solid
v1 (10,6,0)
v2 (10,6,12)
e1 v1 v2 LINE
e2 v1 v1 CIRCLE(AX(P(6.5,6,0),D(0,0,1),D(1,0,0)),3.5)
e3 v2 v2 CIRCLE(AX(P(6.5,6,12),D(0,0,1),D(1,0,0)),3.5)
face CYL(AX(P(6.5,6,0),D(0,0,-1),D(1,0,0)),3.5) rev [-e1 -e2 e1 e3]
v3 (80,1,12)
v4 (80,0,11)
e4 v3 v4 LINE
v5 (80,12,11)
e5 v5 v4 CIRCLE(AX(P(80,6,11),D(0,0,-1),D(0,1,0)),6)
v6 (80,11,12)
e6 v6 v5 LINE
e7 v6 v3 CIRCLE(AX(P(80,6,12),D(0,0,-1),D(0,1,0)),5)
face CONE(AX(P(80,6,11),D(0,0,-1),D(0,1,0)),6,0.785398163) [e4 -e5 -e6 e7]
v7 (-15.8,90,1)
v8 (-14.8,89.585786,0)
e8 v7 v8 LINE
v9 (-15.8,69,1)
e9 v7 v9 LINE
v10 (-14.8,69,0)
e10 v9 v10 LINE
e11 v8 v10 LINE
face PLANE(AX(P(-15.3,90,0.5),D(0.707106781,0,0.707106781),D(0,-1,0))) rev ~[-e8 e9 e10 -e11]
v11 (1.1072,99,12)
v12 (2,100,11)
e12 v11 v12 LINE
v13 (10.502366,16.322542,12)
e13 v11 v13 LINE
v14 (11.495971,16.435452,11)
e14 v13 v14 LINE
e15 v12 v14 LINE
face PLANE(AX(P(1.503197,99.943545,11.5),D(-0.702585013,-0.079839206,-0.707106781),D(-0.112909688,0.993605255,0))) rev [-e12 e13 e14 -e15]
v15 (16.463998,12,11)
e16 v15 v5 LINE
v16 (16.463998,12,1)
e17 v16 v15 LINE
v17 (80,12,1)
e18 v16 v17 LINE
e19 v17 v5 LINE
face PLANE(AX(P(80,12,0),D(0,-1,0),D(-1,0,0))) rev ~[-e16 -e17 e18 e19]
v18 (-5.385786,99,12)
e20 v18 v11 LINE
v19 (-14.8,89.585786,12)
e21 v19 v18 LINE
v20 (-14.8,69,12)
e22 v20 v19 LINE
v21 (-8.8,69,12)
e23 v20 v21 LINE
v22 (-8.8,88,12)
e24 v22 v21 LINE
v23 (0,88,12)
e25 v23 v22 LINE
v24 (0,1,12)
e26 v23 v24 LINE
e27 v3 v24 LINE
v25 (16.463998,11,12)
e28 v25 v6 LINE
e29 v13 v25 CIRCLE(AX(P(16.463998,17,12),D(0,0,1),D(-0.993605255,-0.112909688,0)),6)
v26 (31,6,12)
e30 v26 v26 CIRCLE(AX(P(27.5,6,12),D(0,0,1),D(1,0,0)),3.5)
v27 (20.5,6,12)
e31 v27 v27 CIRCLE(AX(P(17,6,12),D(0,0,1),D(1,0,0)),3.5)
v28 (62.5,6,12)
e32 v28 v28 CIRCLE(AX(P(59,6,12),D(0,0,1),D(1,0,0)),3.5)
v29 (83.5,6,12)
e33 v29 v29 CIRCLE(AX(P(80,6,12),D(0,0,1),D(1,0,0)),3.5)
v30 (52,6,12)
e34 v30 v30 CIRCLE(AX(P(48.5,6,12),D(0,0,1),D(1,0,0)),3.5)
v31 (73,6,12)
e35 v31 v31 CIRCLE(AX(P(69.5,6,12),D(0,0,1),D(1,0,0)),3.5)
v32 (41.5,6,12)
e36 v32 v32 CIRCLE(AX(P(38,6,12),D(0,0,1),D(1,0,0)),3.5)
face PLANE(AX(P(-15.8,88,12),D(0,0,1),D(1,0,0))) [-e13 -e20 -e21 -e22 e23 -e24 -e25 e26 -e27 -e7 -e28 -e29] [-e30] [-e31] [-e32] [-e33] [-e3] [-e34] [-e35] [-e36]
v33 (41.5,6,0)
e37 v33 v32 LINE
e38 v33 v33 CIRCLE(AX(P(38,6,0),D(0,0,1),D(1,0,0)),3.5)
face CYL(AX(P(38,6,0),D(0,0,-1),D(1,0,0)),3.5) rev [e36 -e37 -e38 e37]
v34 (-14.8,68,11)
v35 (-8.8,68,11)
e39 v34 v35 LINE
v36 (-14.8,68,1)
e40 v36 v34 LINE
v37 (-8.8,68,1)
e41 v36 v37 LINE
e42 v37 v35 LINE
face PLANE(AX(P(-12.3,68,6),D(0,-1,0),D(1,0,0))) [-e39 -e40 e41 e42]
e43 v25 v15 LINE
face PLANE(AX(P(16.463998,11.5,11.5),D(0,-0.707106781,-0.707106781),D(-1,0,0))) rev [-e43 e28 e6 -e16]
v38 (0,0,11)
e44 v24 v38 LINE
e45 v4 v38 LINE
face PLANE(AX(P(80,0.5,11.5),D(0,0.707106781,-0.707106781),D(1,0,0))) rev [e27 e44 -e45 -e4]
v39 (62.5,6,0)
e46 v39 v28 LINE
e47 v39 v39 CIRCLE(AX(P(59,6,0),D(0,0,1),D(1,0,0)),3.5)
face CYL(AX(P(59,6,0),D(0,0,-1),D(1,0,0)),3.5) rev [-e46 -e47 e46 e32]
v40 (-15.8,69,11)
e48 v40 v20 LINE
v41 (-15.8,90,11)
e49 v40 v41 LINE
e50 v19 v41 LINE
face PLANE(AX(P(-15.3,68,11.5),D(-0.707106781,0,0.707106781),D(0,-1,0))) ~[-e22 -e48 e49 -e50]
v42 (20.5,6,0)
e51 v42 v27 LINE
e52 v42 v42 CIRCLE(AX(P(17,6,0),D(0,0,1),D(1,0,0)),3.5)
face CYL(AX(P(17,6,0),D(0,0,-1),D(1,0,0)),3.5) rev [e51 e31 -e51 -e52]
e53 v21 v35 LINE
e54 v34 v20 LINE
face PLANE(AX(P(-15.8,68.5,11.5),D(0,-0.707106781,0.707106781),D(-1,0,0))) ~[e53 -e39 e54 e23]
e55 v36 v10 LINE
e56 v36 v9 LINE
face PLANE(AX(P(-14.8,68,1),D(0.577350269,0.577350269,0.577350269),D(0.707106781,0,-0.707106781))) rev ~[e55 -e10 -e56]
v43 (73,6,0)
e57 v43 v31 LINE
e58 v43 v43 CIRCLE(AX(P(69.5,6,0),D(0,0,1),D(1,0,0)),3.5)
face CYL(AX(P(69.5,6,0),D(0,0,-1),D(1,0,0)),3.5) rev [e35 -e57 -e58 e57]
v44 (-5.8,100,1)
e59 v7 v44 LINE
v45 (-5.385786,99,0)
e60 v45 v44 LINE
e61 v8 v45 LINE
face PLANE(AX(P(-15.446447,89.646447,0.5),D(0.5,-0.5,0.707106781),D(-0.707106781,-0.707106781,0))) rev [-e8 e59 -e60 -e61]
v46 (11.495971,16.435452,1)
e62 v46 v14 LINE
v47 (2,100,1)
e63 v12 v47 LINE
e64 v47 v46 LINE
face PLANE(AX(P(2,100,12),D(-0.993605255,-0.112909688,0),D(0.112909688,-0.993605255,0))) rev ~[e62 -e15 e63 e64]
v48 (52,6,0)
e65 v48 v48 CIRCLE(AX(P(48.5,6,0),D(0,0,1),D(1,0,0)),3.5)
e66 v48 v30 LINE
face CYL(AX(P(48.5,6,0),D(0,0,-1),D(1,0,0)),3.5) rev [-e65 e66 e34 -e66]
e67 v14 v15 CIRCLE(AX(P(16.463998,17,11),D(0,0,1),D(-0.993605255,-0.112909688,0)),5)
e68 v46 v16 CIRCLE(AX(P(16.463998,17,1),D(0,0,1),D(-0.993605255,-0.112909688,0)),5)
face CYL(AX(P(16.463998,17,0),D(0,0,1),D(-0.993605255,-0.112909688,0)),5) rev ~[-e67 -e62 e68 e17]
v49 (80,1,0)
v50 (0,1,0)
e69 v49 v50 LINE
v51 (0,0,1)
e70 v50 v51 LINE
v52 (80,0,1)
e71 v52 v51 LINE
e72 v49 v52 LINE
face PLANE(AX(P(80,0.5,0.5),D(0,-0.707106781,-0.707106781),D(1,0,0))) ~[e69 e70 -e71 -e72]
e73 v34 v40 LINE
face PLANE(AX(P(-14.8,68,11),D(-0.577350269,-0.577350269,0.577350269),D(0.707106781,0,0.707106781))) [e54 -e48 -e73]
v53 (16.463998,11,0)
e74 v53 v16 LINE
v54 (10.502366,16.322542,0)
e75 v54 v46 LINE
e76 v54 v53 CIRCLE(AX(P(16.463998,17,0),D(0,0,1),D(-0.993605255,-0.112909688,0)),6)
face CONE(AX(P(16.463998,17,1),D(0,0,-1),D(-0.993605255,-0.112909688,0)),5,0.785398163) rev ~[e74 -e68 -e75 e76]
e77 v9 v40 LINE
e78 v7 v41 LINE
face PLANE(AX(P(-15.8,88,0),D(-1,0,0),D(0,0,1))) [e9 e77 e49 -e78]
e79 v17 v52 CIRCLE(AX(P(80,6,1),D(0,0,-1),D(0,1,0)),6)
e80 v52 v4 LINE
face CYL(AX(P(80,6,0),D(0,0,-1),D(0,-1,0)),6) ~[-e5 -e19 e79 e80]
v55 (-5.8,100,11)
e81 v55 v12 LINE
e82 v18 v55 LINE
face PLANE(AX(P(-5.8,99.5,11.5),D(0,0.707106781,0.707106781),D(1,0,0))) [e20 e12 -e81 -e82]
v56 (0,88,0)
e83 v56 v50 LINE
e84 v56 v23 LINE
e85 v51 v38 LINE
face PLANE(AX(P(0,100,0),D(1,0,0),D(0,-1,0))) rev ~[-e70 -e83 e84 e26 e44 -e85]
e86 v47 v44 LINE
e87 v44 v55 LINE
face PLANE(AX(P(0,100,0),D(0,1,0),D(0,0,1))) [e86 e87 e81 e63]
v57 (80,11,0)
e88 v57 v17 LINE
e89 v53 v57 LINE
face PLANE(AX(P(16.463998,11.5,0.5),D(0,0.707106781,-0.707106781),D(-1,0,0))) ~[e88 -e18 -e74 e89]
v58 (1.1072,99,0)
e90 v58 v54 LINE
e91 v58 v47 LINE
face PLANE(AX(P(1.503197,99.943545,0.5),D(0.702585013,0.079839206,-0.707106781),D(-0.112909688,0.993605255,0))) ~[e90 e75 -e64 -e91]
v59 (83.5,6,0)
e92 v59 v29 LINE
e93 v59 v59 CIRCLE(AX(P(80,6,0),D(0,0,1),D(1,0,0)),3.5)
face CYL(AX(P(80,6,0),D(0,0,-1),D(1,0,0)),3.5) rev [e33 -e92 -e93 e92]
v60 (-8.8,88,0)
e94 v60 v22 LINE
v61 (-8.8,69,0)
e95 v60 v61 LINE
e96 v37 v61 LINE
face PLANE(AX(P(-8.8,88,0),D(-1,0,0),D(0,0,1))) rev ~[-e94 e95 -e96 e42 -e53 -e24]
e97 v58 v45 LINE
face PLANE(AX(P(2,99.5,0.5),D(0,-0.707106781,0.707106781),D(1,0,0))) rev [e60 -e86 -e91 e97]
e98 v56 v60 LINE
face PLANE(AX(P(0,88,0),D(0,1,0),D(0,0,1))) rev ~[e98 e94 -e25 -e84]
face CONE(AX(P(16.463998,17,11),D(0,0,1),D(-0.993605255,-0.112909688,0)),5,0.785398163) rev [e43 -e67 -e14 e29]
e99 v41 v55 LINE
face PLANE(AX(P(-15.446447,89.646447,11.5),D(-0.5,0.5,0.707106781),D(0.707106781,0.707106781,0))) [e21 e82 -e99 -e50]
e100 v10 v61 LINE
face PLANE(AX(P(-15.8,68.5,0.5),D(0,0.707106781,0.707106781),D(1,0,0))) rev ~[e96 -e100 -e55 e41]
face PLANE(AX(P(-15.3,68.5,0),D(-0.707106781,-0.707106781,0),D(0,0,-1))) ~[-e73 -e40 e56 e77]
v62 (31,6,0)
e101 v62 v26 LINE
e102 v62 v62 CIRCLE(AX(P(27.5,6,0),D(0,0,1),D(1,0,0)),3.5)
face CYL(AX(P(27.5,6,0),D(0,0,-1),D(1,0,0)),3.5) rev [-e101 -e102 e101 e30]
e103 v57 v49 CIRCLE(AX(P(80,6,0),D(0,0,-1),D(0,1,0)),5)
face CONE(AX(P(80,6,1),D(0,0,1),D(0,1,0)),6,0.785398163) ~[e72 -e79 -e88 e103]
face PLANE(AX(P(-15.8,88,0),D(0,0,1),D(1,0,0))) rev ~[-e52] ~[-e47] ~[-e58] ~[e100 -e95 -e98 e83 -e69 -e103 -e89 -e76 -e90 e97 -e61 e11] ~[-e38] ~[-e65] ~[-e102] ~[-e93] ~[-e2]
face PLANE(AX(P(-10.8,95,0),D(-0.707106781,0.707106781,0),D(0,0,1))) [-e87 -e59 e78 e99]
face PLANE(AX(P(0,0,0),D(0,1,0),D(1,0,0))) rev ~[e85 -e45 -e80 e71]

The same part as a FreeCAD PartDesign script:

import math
import FreeCAD as App
import Part
import Sketcher
Q = App.Units.Quantity


def edges_at(feature, points):
    """Names of the edges that pass closest to the given points."""
    edges = feature.Shape.Edges
    near = lambda p: min(range(len(edges)), key=lambda i: edges[i].distToShape(Part.Vertex(*p))[0])
    return sorted({f"Edge{near(p) + 1}" for p in points})

doc = App.newDocument("Part")
body = doc.addObject("PartDesign::Body", "Body")

# Sketch on XY plane
sketch1 = doc.addObject("Sketcher::SketchObject", "Sketch")
body.addObject(sketch1)
sketch1.AttachmentSupport = (doc.XY_Plane, [""])
sketch1.MapMode = "FlatFace"
sketch1.addGeometry(Part.LineSegment(App.Vector(12, 100, 0), App.Vector(0, 100, 0)), False)
sketch1.addGeometry(Part.LineSegment(App.Vector(0, 100, 0), App.Vector(0, 0, 0)), False)
sketch1.addGeometry(Part.LineSegment(App.Vector(0, 0, 0), App.Vector(80, 0, 0)), False)
sketch1.addGeometry(Part.ArcOfCircle(Part.Circle(App.Vector(80, 6, 0), App.Vector(0, 0, 1), 6), math.radians(-90), math.radians(90)), False)
sketch1.addGeometry(Part.LineSegment(App.Vector(80, 12, 0), App.Vector(12, 12, 0)), False)
sketch1.addGeometry(Part.LineSegment(App.Vector(12, 12, 0), App.Vector(12, 100, 0)), False)
sketch1.addGeometry(Part.Circle(App.Vector(6.5, 6, 0), App.Vector(0, 0, 1), 3.5), False)
sketch1.addGeometry(Part.Circle(App.Vector(17, 6, 0), App.Vector(0, 0, 1), 3.5), False)
sketch1.addGeometry(Part.Circle(App.Vector(27.5, 6, 0), App.Vector(0, 0, 1), 3.5), False)
sketch1.addGeometry(Part.Circle(App.Vector(38, 6, 0), App.Vector(0, 0, 1), 3.5), False)
sketch1.addGeometry(Part.Circle(App.Vector(48.5, 6, 0), App.Vector(0, 0, 1), 3.5), False)
sketch1.addGeometry(Part.Circle(App.Vector(59, 6, 0), App.Vector(0, 0, 1), 3.5), False)
sketch1.addGeometry(Part.Circle(App.Vector(69.5, 6, 0), App.Vector(0, 0, 1), 3.5), False)
sketch1.addGeometry(Part.Circle(App.Vector(80, 6, 0), App.Vector(0, 0, 1), 3.5), False)
sketch1.addConstraint(Sketcher.Constraint("Coincident", 0, 2, 1, 1))
sketch1.addConstraint(Sketcher.Constraint("Coincident", 1, 2, 2, 1))
sketch1.addConstraint(Sketcher.Constraint("Tangent", 2, 2, 3, 1))
sketch1.addConstraint(Sketcher.Constraint("Tangent", 3, 2, 4, 1))
sketch1.addConstraint(Sketcher.Constraint("Coincident", 4, 2, 5, 1))
sketch1.addConstraint(Sketcher.Constraint("Coincident", 5, 2, 0, 1))
sketch1.addConstraint(Sketcher.Constraint("Horizontal", 0))
sketch1.addConstraint(Sketcher.Constraint("Vertical", 1))
sketch1.addConstraint(Sketcher.Constraint("Horizontal", 2))
sketch1.addConstraint(Sketcher.Constraint("Horizontal", 4))
sketch1.addConstraint(Sketcher.Constraint("Vertical", 5))
sketch1.addConstraint(Sketcher.Constraint("Coincident", 1, 2, -1, 1))
sketch1.addConstraint(Sketcher.Constraint("Coincident", 13, 3, 3, 3))
sketch1.addConstraint(Sketcher.Constraint("Equal", 6, 7))
sketch1.addConstraint(Sketcher.Constraint("Equal", 7, 8))
sketch1.addConstraint(Sketcher.Constraint("Equal", 8, 9))
sketch1.addConstraint(Sketcher.Constraint("Equal", 9, 10))
sketch1.addConstraint(Sketcher.Constraint("Equal", 10, 11))
sketch1.addConstraint(Sketcher.Constraint("Equal", 11, 12))
sketch1.addConstraint(Sketcher.Constraint("Equal", 12, 13))
sketch1.addConstraint(Sketcher.Constraint("Horizontal", 3, 3, 6, 3))
sketch1.addConstraint(Sketcher.Constraint("Horizontal", 6, 3, 7, 3))
sketch1.addConstraint(Sketcher.Constraint("Horizontal", 7, 3, 8, 3))
sketch1.addConstraint(Sketcher.Constraint("Horizontal", 8, 3, 9, 3))
sketch1.addConstraint(Sketcher.Constraint("Horizontal", 9, 3, 10, 3))
sketch1.addConstraint(Sketcher.Constraint("Horizontal", 10, 3, 11, 3))
sketch1.addConstraint(Sketcher.Constraint("Horizontal", 11, 3, 12, 3))
sketch1.addConstraint(Sketcher.Constraint("Diameter", 6, Q("7 mm")))
sketch1.addConstraint(Sketcher.Constraint("Radius", 3, Q("6 mm")))
sketch1.addConstraint(Sketcher.Constraint("DistanceX", 0, 2, 0, 1, Q("12 mm")))
sketch1.addConstraint(Sketcher.Constraint("DistanceX", 2, 1, 2, 2, Q("80 mm")))
sketch1.addConstraint(Sketcher.Constraint("DistanceY", 1, 2, 1, 1, Q("100 mm")))
sketch1.addConstraint(Sketcher.Constraint("DistanceX", -1, 1, 7, 3, Q("17 mm")))
sketch1.addConstraint(Sketcher.Constraint("DistanceX", -1, 1, 9, 3, Q("38 mm")))
sketch1.addConstraint(Sketcher.Constraint("DistanceX", -1, 1, 11, 3, Q("59 mm")))
sketch1.addConstraint(Sketcher.Constraint("DistanceX", 6, 3, 8, 3, Q("21 mm")))
sketch1.addConstraint(Sketcher.Constraint("DistanceX", 8, 3, 10, 3, Q("21 mm")))
sketch1.addConstraint(Sketcher.Constraint("DistanceX", 10, 3, 12, 3, Q("21 mm")))
sketch1.addConstraint(Sketcher.Constraint("DistanceX", -1, 1, 6, 3, Q("6.5 mm")))
pad1 = doc.addObject("PartDesign::Pad", "Pad")
body.addObject(pad1)
pad1.Profile = sketch1
pad1.Length = 12

# Sketch on XY plane
sketch2 = doc.addObject("Sketcher::SketchObject", "Sketch001")
body.addObject(sketch2)
sketch2.AttachmentSupport = (doc.XY_Plane, [""])
sketch2.MapMode = "FlatFace"
sketch2.AttachmentOffset = App.Placement(App.Vector(0, 0, 12), App.Rotation())
sketch2.addGeometry(Part.LineSegment(App.Vector(2, 100, 0), App.Vector(12, 12, 0)), False)
sketch2.addGeometry(Part.LineSegment(App.Vector(12, 12, 0), App.Vector(12, 100, 0)), False)
sketch2.addGeometry(Part.LineSegment(App.Vector(12, 100, 0), App.Vector(2, 100, 0)), False)
sketch2.addConstraint(Sketcher.Constraint("Coincident", 0, 2, 1, 1))
sketch2.addConstraint(Sketcher.Constraint("Coincident", 1, 2, 2, 1))
sketch2.addConstraint(Sketcher.Constraint("Coincident", 2, 2, 0, 1))
sketch2.addConstraint(Sketcher.Constraint("Vertical", 1))
sketch2.addConstraint(Sketcher.Constraint("Horizontal", 2))
sketch2.addConstraint(Sketcher.Constraint("DistanceX", 2, 2, 2, 1, Q("10 mm")))
sketch2.addConstraint(Sketcher.Constraint("DistanceY", 1, 1, 1, 2, Q("88 mm")))
sketch2.addConstraint(Sketcher.Constraint("DistanceX", -1, 1, 0, 2, Q("12 mm")))
sketch2.addConstraint(Sketcher.Constraint("DistanceY", -1, 1, 0, 2, Q("12 mm")))
pocket1 = doc.addObject("PartDesign::Pocket", "Pocket")
body.addObject(pocket1)
pocket1.Profile = sketch2
pocket1.Length = 25
doc.recompute()

fillet = doc.addObject("PartDesign::Fillet", "Fillet")
body.addObject(fillet)
fillet.Base = (pocket1, edges_at(pocket1, [(12, 12, 6)]))
fillet.Radius = 5

# Sketch on YZ plane
sketch3 = doc.addObject("Sketcher::SketchObject", "Sketch002")
body.addObject(sketch3)
sketch3.AttachmentSupport = (doc.YZ_Plane, [""])
sketch3.MapMode = "FlatFace"
sketch3.addGeometry(Part.LineSegment(App.Vector(100, 12, 0), App.Vector(100, 0, 0)), False)
sketch3.addGeometry(Part.LineSegment(App.Vector(100, 0, 0), App.Vector(88, 0, 0)), False)
sketch3.addGeometry(Part.LineSegment(App.Vector(88, 0, 0), App.Vector(88, 12, 0)), False)
sketch3.addGeometry(Part.LineSegment(App.Vector(88, 12, 0), App.Vector(100, 12, 0)), False)
sketch3.addConstraint(Sketcher.Constraint("Coincident", 0, 2, 1, 1))
sketch3.addConstraint(Sketcher.Constraint("Coincident", 1, 2, 2, 1))
sketch3.addConstraint(Sketcher.Constraint("Coincident", 2, 2, 3, 1))
sketch3.addConstraint(Sketcher.Constraint("Coincident", 3, 2, 0, 1))
sketch3.addConstraint(Sketcher.Constraint("Vertical", 0))
sketch3.addConstraint(Sketcher.Constraint("Horizontal", 1))
sketch3.addConstraint(Sketcher.Constraint("Vertical", 2))
sketch3.addConstraint(Sketcher.Constraint("Horizontal", 3))
sketch3.addConstraint(Sketcher.Constraint("PointOnObject", 0, 2, -1))
sketch3.addConstraint(Sketcher.Constraint("Equal", 3, 0))
sketch3.addConstraint(Sketcher.Constraint("DistanceX", 1, 2, 1, 1, Q("12 mm")))
sketch3.addConstraint(Sketcher.Constraint("DistanceX", -1, 1, 0, 2, Q("100 mm")))
pad2 = doc.addObject("PartDesign::Pad", "Pad001")
body.addObject(pad2)
pad2.Profile = sketch3
pad2.Length = 15.8
pad2.Reversed = True

# Sketch on XZ plane
sketch4 = doc.addObject("Sketcher::SketchObject", "Sketch003")
body.addObject(sketch4)
sketch4.AttachmentSupport = (doc.XZ_Plane, [""])
sketch4.MapMode = "FlatFace"
sketch4.AttachmentOffset = App.Placement(App.Vector(0, 0, -88), App.Rotation())
sketch4.addGeometry(Part.LineSegment(App.Vector(-15.8, 12, 0), App.Vector(-15.8, 0, 0)), False)
sketch4.addGeometry(Part.LineSegment(App.Vector(-15.8, 0, 0), App.Vector(-8.8, 0, 0)), False)
sketch4.addGeometry(Part.LineSegment(App.Vector(-8.8, 0, 0), App.Vector(-8.8, 12, 0)), False)
sketch4.addGeometry(Part.LineSegment(App.Vector(-8.8, 12, 0), App.Vector(-15.8, 12, 0)), False)
sketch4.addConstraint(Sketcher.Constraint("Coincident", 0, 2, 1, 1))
sketch4.addConstraint(Sketcher.Constraint("Coincident", 1, 2, 2, 1))
sketch4.addConstraint(Sketcher.Constraint("Coincident", 2, 2, 3, 1))
sketch4.addConstraint(Sketcher.Constraint("Coincident", 3, 2, 0, 1))
sketch4.addConstraint(Sketcher.Constraint("Vertical", 0))
sketch4.addConstraint(Sketcher.Constraint("Horizontal", 1))
sketch4.addConstraint(Sketcher.Constraint("Vertical", 2))
sketch4.addConstraint(Sketcher.Constraint("Horizontal", 3))
sketch4.addConstraint(Sketcher.Constraint("PointOnObject", 0, 2, -1))
sketch4.addConstraint(Sketcher.Constraint("DistanceX", 1, 1, 1, 2, Q("7 mm")))
sketch4.addConstraint(Sketcher.Constraint("DistanceY", 0, 2, 0, 1, Q("12 mm")))
sketch4.addConstraint(Sketcher.Constraint("DistanceX", 0, 2, -1, 1, Q("15.8 mm")))
pad3 = doc.addObject("PartDesign::Pad", "Pad002")
body.addObject(pad3)
pad3.Profile = sketch4
pad3.Length = 20
doc.recompute()

chamfer = doc.addObject("PartDesign::Chamfer", "Chamfer")
body.addObject(chamfer)
chamfer.Base = (pad3, edges_at(pad3, [(-15.8, 100, 6)]))
chamfer.Size = 10
doc.recompute()

chamfer2 = doc.addObject("PartDesign::Chamfer", "Chamfer001")
body.addObject(chamfer2)
chamfer2.Base = (chamfer, edges_at(chamfer, [
    (6.748, 58.218, 12),
    (6.748, 58.218, 0),
    (-1.9, 100, 12),
    (-10.8, 95, 12),
    (-15.8, 79, 12),
    (-1.9, 100, 0),
    (-10.8, 95, 0),
    (-15.8, 79, 0),
    (-15.8, 68, 6),
    (-12.3, 68, 12),
    (-12.3, 68, 0),
]))
chamfer2.Size = 1

doc.recompute()
